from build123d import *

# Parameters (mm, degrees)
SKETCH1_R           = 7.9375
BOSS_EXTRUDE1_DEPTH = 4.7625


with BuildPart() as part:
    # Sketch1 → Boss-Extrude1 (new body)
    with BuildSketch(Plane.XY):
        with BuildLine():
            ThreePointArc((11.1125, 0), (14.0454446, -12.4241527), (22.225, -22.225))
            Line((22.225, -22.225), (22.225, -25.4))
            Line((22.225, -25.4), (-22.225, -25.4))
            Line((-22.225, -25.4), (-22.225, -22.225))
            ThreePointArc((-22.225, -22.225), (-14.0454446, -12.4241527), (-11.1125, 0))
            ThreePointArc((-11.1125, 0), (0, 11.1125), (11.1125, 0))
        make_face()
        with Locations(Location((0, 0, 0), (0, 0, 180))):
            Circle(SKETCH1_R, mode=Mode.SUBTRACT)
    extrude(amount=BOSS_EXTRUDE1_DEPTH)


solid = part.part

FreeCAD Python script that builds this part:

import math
import FreeCAD as App
import Part
import Sketcher

V = App.Vector
Q = App.Units.Quantity

doc = App.newDocument("Part")
body = doc.addObject("PartDesign::Body", "Body")

# Sketch on XY plane
sketch1 = body.newObject("Sketcher::SketchObject", "Sketch")
sketch1.AttachmentSupport = (doc.getObject("XY_Plane"), [""])
sketch1.MapMode = "FlatFace"
sketch1.addGeometry([
    Part.ArcOfCircle(Part.Circle(V(38.89375, 0, 0), V(0, 0, 1), 27.78125), math.radians(180), math.radians(233.130102)),  # 0
    Part.ArcOfCircle(Part.Circle(V(0, 0, 0), V(0, 0, 1), 11.1125), math.radians(0), math.radians(180)),  # 1
    Part.ArcOfCircle(Part.Circle(V(-38.89375, 0, 0), V(0, 0, 1), 27.78125), math.radians(-53.130102), math.radians(0)),  # 2
    Part.LineSegment(V(-22.225, -22.225, 0), V(-22.225, -25.4, 0)),  # 3
    Part.LineSegment(V(-22.225, -25.4, 0), V(22.225, -25.4, 0)),  # 4
    Part.LineSegment(V(22.225, -25.4, 0), V(22.225, -22.225, 0)),  # 5
    Part.Circle(V(0, 0, 0), V(0, 0, 1), 7.9375),  # 6
], False)
sketch1.addConstraint([
    Sketcher.Constraint("Tangent", 0, 1, 1, 1),
    Sketcher.Constraint("Tangent", 1, 2, 2, 2),
    Sketcher.Constraint("Coincident", 2, 1, 3, 1),
    Sketcher.Constraint("Coincident", 3, 2, 4, 1),
    Sketcher.Constraint("Coincident", 4, 2, 5, 1),
    Sketcher.Constraint("Coincident", 5, 2, 0, 2),
    Sketcher.Constraint("Vertical", 3),
    Sketcher.Constraint("Horizontal", 4),
    Sketcher.Constraint("Vertical", 5),
    Sketcher.Constraint("Coincident", 1, 3, -1, 1),
    Sketcher.Constraint("Coincident", 6, 3, -1, 1),
    Sketcher.Constraint("Equal", 0, 2),
    Sketcher.Constraint("Symmetric", 2, 1, 5, 2, -2),
    Sketcher.Constraint("PointOnObject", 0, 3, -1),
    Sketcher.Constraint("Diameter", 6, Q("0.625 in")),
    Sketcher.Constraint("DistanceY", 3, 2, -1, 1, Q("1 in")),
    Sketcher.Constraint("Radius", 0, Q("1.09375 in")),
    Sketcher.Constraint("Radius", 1, Q("0.4375 in")),
    Sketcher.Constraint("DistanceX", 4, 1, 4, 2, Q("1.75 in")),
])
pad1 = body.newObject("PartDesign::Pad", "Pad")
pad1.Profile = sketch1
pad1.Length = Q("0.1875 in")

doc.recompute()
